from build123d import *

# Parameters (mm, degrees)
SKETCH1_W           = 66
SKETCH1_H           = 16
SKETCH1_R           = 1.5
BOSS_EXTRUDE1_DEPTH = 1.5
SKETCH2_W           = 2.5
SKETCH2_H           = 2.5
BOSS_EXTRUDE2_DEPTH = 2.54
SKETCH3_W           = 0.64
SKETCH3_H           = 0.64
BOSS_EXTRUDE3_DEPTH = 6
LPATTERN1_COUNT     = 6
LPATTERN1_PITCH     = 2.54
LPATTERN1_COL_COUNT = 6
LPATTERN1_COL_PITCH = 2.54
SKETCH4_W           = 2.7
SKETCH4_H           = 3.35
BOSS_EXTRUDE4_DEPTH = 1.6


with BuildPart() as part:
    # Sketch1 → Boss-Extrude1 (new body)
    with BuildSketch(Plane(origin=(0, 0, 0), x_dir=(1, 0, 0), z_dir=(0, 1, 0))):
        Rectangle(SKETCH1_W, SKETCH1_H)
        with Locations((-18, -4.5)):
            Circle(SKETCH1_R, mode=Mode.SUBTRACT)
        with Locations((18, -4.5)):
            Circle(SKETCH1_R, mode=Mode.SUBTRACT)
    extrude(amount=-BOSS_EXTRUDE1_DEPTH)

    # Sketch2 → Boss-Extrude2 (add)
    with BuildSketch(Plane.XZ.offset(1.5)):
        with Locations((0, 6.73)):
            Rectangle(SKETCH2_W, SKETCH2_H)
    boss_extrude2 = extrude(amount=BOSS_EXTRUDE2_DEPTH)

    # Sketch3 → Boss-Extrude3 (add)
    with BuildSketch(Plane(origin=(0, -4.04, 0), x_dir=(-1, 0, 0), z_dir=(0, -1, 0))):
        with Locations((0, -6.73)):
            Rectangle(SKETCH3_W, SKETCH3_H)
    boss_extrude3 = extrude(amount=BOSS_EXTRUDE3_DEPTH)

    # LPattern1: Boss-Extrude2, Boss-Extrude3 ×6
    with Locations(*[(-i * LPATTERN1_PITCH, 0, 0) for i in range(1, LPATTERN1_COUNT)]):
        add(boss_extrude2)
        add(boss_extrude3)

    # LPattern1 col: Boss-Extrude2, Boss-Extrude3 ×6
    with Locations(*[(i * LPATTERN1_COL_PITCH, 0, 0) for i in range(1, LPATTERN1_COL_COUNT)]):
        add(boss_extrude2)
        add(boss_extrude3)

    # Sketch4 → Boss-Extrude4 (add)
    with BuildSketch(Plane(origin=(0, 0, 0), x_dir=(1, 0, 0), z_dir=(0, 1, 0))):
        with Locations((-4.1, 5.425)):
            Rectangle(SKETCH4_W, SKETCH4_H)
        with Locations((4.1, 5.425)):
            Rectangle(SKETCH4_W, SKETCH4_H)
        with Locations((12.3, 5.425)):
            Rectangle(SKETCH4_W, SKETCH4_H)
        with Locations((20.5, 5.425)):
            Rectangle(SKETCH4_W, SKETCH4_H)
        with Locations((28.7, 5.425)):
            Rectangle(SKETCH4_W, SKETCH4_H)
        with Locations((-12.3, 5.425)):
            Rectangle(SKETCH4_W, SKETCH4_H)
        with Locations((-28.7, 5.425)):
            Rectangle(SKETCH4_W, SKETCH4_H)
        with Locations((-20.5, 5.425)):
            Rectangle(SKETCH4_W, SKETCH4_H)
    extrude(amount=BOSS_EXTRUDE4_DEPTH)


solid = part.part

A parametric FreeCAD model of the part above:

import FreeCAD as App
import Part
import Sketcher
Q = App.Units.Quantity

doc = App.newDocument("Part")
params = doc.addObject("Spreadsheet::Sheet", "Params")
for row, (alias, value) in enumerate([
    ("sketch1_diameter", "3 mm"),
    ("sketch1_width", "66 mm"),
    ("sketch1_height", "16 mm"),
    ("pad1_length", "1.5 mm"),
    ("sketch2_width", "2.5 mm"),
    ("pad2_length", "2.54 mm"),
    ("sketch3_width", "0.64 mm"),
    ("pad3_length", "6 mm"),
    ("linearpattern_pitch", "2.54 mm"),
    ("linearpattern2_pitch", "2.54 mm"),
    ("sketch4_width", "2.7 mm"),
    ("sketch4_height", "3.35 mm"),
    ("pad4_length", "1.6 mm"),
], start=1):
    params.set(f"A{row}", alias)
    params.set(f"B{row}", "=" + value)
    params.setAlias(f"B{row}", alias)

body = doc.addObject("PartDesign::Body", "Body")

# Sketch on XZ plane
sketch1 = body.newObject("Sketcher::SketchObject", "Sketch")
sketch1.AttachmentSupport = (doc.getObject("XZ_Plane"), [""])
sketch1.MapMode = "FlatFace"
sketch1.addGeometry(Part.LineSegment(App.Vector(-33, -8, 0), App.Vector(-33, 8, 0)), False)
sketch1.addGeometry(Part.LineSegment(App.Vector(-33, 8, 0), App.Vector(33, 8, 0)), False)
sketch1.addGeometry(Part.LineSegment(App.Vector(33, 8, 0), App.Vector(33, -8, 0)), False)
sketch1.addGeometry(Part.LineSegment(App.Vector(33, -8, 0), App.Vector(-33, -8, 0)), False)
sketch1.addGeometry(Part.Circle(App.Vector(-18, 4.5, 0), App.Vector(0, 0, 1), 1.5), False)
sketch1.addGeometry(Part.Circle(App.Vector(18, 4.5, 0), App.Vector(0, 0, 1), 1.5), False)
sketch1.addConstraint(Sketcher.Constraint("Coincident", 0, 2, 1, 1))
sketch1.addConstraint(Sketcher.Constraint("Coincident", 1, 2, 2, 1))
sketch1.addConstraint(Sketcher.Constraint("Coincident", 2, 2, 3, 1))
sketch1.addConstraint(Sketcher.Constraint("Coincident", 3, 2, 0, 1))
sketch1.addConstraint(Sketcher.Constraint("Vertical", 0))
sketch1.addConstraint(Sketcher.Constraint("Horizontal", 1))
sketch1.addConstraint(Sketcher.Constraint("Vertical", 2))
sketch1.addConstraint(Sketcher.Constraint("Horizontal", 3))
sketch1.addConstraint(Sketcher.Constraint("Equal", 4, 5))
sketch1.addConstraint(Sketcher.Constraint("Symmetric", 0, 2, 2, 2, -1, 1))
sketch1.addConstraint(Sketcher.Constraint("Symmetric", 4, 3, 5, 3, -2))
sketch1.addConstraint(Sketcher.Constraint("Diameter", 4, Q("3 mm")))
sketch1.addConstraint(Sketcher.Constraint("DistanceX", 1, 1, 1, 2, Q("66 mm")))
sketch1.addConstraint(Sketcher.Constraint("DistanceY", 0, 1, 0, 2, Q("16 mm")))
sketch1.addConstraint(Sketcher.Constraint("DistanceX", 4, 3, -1, 1, Q("18 mm")))
sketch1.addConstraint(Sketcher.Constraint("DistanceY", -1, 1, 4, 3, Q("4.5 mm")))
sketch1.setExpression("Constraints[11]", "Params.sketch1_diameter")
sketch1.setExpression("Constraints[12]", "Params.sketch1_width")
sketch1.setExpression("Constraints[13]", "Params.sketch1_height")
pad1 = body.newObject("PartDesign::Pad", "Pad")
pad1.Profile = sketch1
pad1.setExpression("Length", "Params.pad1_length")

# Sketch on XZ plane
sketch2 = body.newObject("Sketcher::SketchObject", "Sketch001")
sketch2.AttachmentSupport = (doc.getObject("XZ_Plane"), [""])
sketch2.MapMode = "FlatFace"
sketch2.AttachmentOffset = App.Placement(App.Vector(0, 0, 1.5), App.Rotation())
sketch2.addGeometry(Part.LineSegment(App.Vector(-1.2, 8, 0), App.Vector(-1.2, 5.5, 0)), False)
sketch2.addGeometry(Part.LineSegment(App.Vector(-1.2, 5.5, 0), App.Vector(1.2, 5.5, 0)), False)
sketch2.addGeometry(Part.LineSegment(App.Vector(1.2, 5.5, 0), App.Vector(1.2, 8, 0)), False)
sketch2.addGeometry(Part.LineSegment(App.Vector(1.2, 8, 0), App.Vector(-1.2, 8, 0)), False)
sketch2.addConstraint(Sketcher.Constraint("Coincident", 0, 2, 1, 1))
sketch2.addConstraint(Sketcher.Constraint("Coincident", 1, 2, 2, 1))
sketch2.addConstraint(Sketcher.Constraint("Coincident", 2, 2, 3, 1))
sketch2.addConstraint(Sketcher.Constraint("Coincident", 3, 2, 0, 1))
sketch2.addConstraint(Sketcher.Constraint("Vertical", 0))
sketch2.addConstraint(Sketcher.Constraint("Horizontal", 1))
sketch2.addConstraint(Sketcher.Constraint("Vertical", 2))
sketch2.addConstraint(Sketcher.Constraint("Horizontal", 3))
sketch2.addConstraint(Sketcher.Constraint("Equal", 3, 0))
sketch2.addConstraint(Sketcher.Constraint("DistanceX", 1, 1, 1, 2, Q("2.5 mm")))
sketch2.addConstraint(Sketcher.Constraint("DistanceX", 0, 2, -1, 1, Q("1.25 mm")))
sketch2.addConstraint(Sketcher.Constraint("DistanceY", -1, 1, 0, 2, Q("5.48 mm")))
sketch2.setExpression("Constraints[9]", "Params.sketch2_width")
pad2 = body.newObject("PartDesign::Pad", "Pad001")
pad2.Profile = sketch2
pad2.setExpression("Length", "Params.pad2_length")

# Sketch on XZ plane
sketch3 = body.newObject("Sketcher::SketchObject", "Sketch002")
sketch3.AttachmentSupport = (doc.getObject("XZ_Plane"), [""])
sketch3.MapMode = "FlatFace"
sketch3.AttachmentOffset = App.Placement(App.Vector(0, 0, 4.04), App.Rotation())
sketch3.addGeometry(Part.LineSegment(App.Vector(0.3, 6.4, 0), App.Vector(0.3, 7, 0)), False)
sketch3.addGeometry(Part.LineSegment(App.Vector(0.3, 7, 0), App.Vector(-0.3, 7, 0)), False)
sketch3.addGeometry(Part.LineSegment(App.Vector(-0.3, 7, 0), App.Vector(-0.3, 6.4, 0)), False)
sketch3.addGeometry(Part.LineSegment(App.Vector(-0.3, 6.4, 0), App.Vector(0.3, 6.4, 0)), False)
sketch3.addConstraint(Sketcher.Constraint("Coincident", 0, 2, 1, 1))
sketch3.addConstraint(Sketcher.Constraint("Coincident", 1, 2, 2, 1))
sketch3.addConstraint(Sketcher.Constraint("Coincident", 2, 2, 3, 1))
sketch3.addConstraint(Sketcher.Constraint("Coincident", 3, 2, 0, 1))
sketch3.addConstraint(Sketcher.Constraint("Vertical", 0))
sketch3.addConstraint(Sketcher.Constraint("Horizontal", 1))
sketch3.addConstraint(Sketcher.Constraint("Vertical", 2))
sketch3.addConstraint(Sketcher.Constraint("Horizontal", 3))
sketch3.addConstraint(Sketcher.Constraint("Equal", 3, 0))
sketch3.addConstraint(Sketcher.Constraint("DistanceX", 1, 2, 1, 1, Q("0.64 mm")))
sketch3.addConstraint(Sketcher.Constraint("DistanceX", -1, 1, 0, 2, Q("0.32 mm")))
sketch3.addConstraint(Sketcher.Constraint("DistanceY", -1, 1, 0, 2, Q("7.05 mm")))
sketch3.setExpression("Constraints[9]", "Params.sketch3_width")
pad3 = body.newObject("PartDesign::Pad", "Pad002")
pad3.Profile = sketch3
pad3.setExpression("Length", "Params.pad3_length")
doc.recompute()

linearpattern = body.newObject("PartDesign::LinearPattern", "LinearPattern")
linearpattern.Originals = [pad2, pad3]
linearpattern.Direction = (doc.getObject("X_Axis"), [""])
linearpattern.Mode = "offset"
linearpattern.setExpression("Offset", "Params.linearpattern_pitch")
linearpattern.Occurrences = 6
linearpattern.Reversed = True
body.Tip = linearpattern
doc.recompute()

linearpattern2 = body.newObject("PartDesign::LinearPattern", "LinearPattern001")
linearpattern2.Originals = [pad2, pad3]
linearpattern2.Direction = (doc.getObject("X_Axis"), [""])
linearpattern2.Mode = "offset"
linearpattern2.setExpression("Offset", "Params.linearpattern2_pitch")
linearpattern2.Occurrences = 6
body.Tip = linearpattern2

# Sketch on XZ plane
sketch4 = body.newObject("Sketcher::SketchObject", "Sketch003")
sketch4.AttachmentSupport = (doc.getObject("XZ_Plane"), [""])
sketch4.MapMode = "FlatFace"
sketch4.addGeometry(Part.LineSegment(App.Vector(-5.5, -7.1, 0), App.Vector(-5.5, -3.8, 0)), False)
sketch4.addGeometry(Part.LineSegment(App.Vector(-5.5, -3.8, 0), App.Vector(-2.8, -3.8, 0)), False)
sketch4.addGeometry(Part.LineSegment(App.Vector(-2.8, -3.8, 0), App.Vector(-2.8, -7.1, 0)), False)
sketch4.addGeometry(Part.LineSegment(App.Vector(-2.8, -7.1, 0), App.Vector(-5.5, -7.1, 0)), False)
sketch4.addGeometry(Part.LineSegment(App.Vector(2.8, -7.1, 0), App.Vector(2.8, -3.8, 0)), False)
sketch4.addGeometry(Part.LineSegment(App.Vector(2.8, -3.8, 0), App.Vector(5.5, -3.8, 0)), False)
sketch4.addGeometry(Part.LineSegment(App.Vector(5.5, -3.8, 0), App.Vector(5.5, -7.1, 0)), False)
sketch4.addGeometry(Part.LineSegment(App.Vector(5.5, -7.1, 0), App.Vector(2.8, -7.1, 0)), False)
sketch4.addGeometry(Part.LineSegment(App.Vector(10.9, -7.1, 0), App.Vector(10.9, -3.8, 0)), False)
sketch4.addGeometry(Part.LineSegment(App.Vector(10.9, -3.8, 0), App.Vector(13.7, -3.8, 0)), False)
sketch4.addGeometry(Part.LineSegment(App.Vector(13.7, -3.8, 0), App.Vector(13.7, -7.1, 0)), False)
sketch4.addGeometry(Part.LineSegment(App.Vector(13.7, -7.1, 0), App.Vector(10.9, -7.1, 0)), False)
sketch4.addGeometry(Part.LineSegment(App.Vector(19.1, -7.1, 0), App.Vector(19.1, -3.8, 0)), False)
sketch4.addGeometry(Part.LineSegment(App.Vector(19.1, -3.8, 0), App.Vector(21.9, -3.8, 0)), False)
sketch4.addGeometry(Part.LineSegment(App.Vector(21.9, -3.8, 0), App.Vector(21.9, -7.1, 0)), False)
sketch4.addGeometry(Part.LineSegment(App.Vector(21.9, -7.1, 0), App.Vector(19.1, -7.1, 0)), False)
sketch4.addGeometry(Part.LineSegment(App.Vector(27.4, -7.1, 0), App.Vector(27.4, -3.8, 0)), False)
sketch4.addGeometry(Part.LineSegment(App.Vector(27.4, -3.8, 0), App.Vector(30.1, -3.8, 0)), False)
sketch4.addGeometry(Part.LineSegment(App.Vector(30.1, -3.8, 0), App.Vector(30.1, -7.1, 0)), False)
sketch4.addGeometry(Part.LineSegment(App.Vector(30.1, -7.1, 0), App.Vector(27.4, -7.1, 0)), False)
sketch4.addGeometry(Part.LineSegment(App.Vector(-13.7, -7.1, 0), App.Vector(-13.7, -3.8, 0)), False)
sketch4.addGeometry(Part.LineSegment(App.Vector(-13.7, -3.8, 0), App.Vector(-10.9, -3.8, 0)), False)
sketch4.addGeometry(Part.LineSegment(App.Vector(-10.9, -3.8, 0), App.Vector(-10.9, -7.1, 0)), False)
sketch4.addGeometry(Part.LineSegment(App.Vector(-10.9, -7.1, 0), App.Vector(-13.7, -7.1, 0)), False)
sketch4.addGeometry(Part.LineSegment(App.Vector(-30.1, -7.1, 0), App.Vector(-30.1, -3.8, 0)), False)
sketch4.addGeometry(Part.LineSegment(App.Vector(-30.1, -3.8, 0), App.Vector(-27.4, -3.8, 0)), False)
sketch4.addGeometry(Part.LineSegment(App.Vector(-27.4, -3.8, 0), App.Vector(-27.4, -7.1, 0)), False)
sketch4.addGeometry(Part.LineSegment(App.Vector(-27.4, -7.1, 0), App.Vector(-30.1, -7.1, 0)), False)
sketch4.addGeometry(Part.LineSegment(App.Vector(-21.9, -7.1, 0), App.Vector(-21.9, -3.8, 0)), False)
sketch4.addGeometry(Part.LineSegment(App.Vector(-21.9, -3.8, 0), App.Vector(-19.1, -3.8, 0)), False)
sketch4.addGeometry(Part.LineSegment(App.Vector(-19.1, -3.8, 0), App.Vector(-19.1, -7.1, 0)), False)
sketch4.addGeometry(Part.LineSegment(App.Vector(-19.1, -7.1, 0), App.Vector(-21.9, -7.1, 0)), False)
sketch4.addConstraint(Sketcher.Constraint("Coincident", 0, 2, 1, 1))
sketch4.addConstraint(Sketcher.Constraint("Coincident", 1, 2, 2, 1))
sketch4.addConstraint(Sketcher.Constraint("Coincident", 2, 2, 3, 1))
sketch4.addConstraint(Sketcher.Constraint("Coincident", 3, 2, 0, 1))
sketch4.addConstraint(Sketcher.Constraint("Coincident", 4, 2, 5, 1))
sketch4.addConstraint(Sketcher.Constraint("Coincident", 5, 2, 6, 1))
sketch4.addConstraint(Sketcher.Constraint("Coincident", 6, 2, 7, 1))
sketch4.addConstraint(Sketcher.Constraint("Coincident", 7, 2, 4, 1))
sketch4.addConstraint(Sketcher.Constraint("Coincident", 8, 2, 9, 1))
sketch4.addConstraint(Sketcher.Constraint("Coincident", 9, 2, 10, 1))
sketch4.addConstraint(Sketcher.Constraint("Coincident", 10, 2, 11, 1))
sketch4.addConstraint(Sketcher.Constraint("Coincident", 11, 2, 8, 1))
sketch4.addConstraint(Sketcher.Constraint("Coincident", 12, 2, 13, 1))
sketch4.addConstraint(Sketcher.Constraint("Coincident", 13, 2, 14, 1))
sketch4.addConstraint(Sketcher.Constraint("Coincident", 14, 2, 15, 1))
sketch4.addConstraint(Sketcher.Constraint("Coincident", 15, 2, 12, 1))
sketch4.addConstraint(Sketcher.Constraint("Coincident", 16, 2, 17, 1))
sketch4.addConstraint(Sketcher.Constraint("Coincident", 17, 2, 18, 1))
sketch4.addConstraint(Sketcher.Constraint("Coincident", 18, 2, 19, 1))
sketch4.addConstraint(Sketcher.Constraint("Coincident", 19, 2, 16, 1))
sketch4.addConstraint(Sketcher.Constraint("Coincident", 20, 2, 21, 1))
sketch4.addConstraint(Sketcher.Constraint("Coincident", 21, 2, 22, 1))
sketch4.addConstraint(Sketcher.Constraint("Coincident", 22, 2, 23, 1))
sketch4.addConstraint(Sketcher.Constraint("Coincident", 23, 2, 20, 1))
sketch4.addConstraint(Sketcher.Constraint("Coincident", 24, 2, 25, 1))
sketch4.addConstraint(Sketcher.Constraint("Coincident", 25, 2, 26, 1))
sketch4.addConstraint(Sketcher.Constraint("Coincident", 26, 2, 27, 1))
sketch4.addConstraint(Sketcher.Constraint("Coincident", 27, 2, 24, 1))
sketch4.addConstraint(Sketcher.Constraint("Coincident", 28, 2, 29, 1))
sketch4.addConstraint(Sketcher.Constraint("Coincident", 29, 2, 30, 1))
sketch4.addConstraint(Sketcher.Constraint("Coincident", 30, 2, 31, 1))
sketch4.addConstraint(Sketcher.Constraint("Coincident", 31, 2, 28, 1))
sketch4.addConstraint(Sketcher.Constraint("Vertical", 0))
sketch4.addConstraint(Sketcher.Constraint("Horizontal", 1))
sketch4.addConstraint(Sketcher.Constraint("Vertical", 2))
sketch4.addConstraint(Sketcher.Constraint("Horizontal", 3))
sketch4.addConstraint(Sketcher.Constraint("Vertical", 4))
sketch4.addConstraint(Sketcher.Constraint("Horizontal", 5))
sketch4.addConstraint(Sketcher.Constraint("Vertical", 6))
sketch4.addConstraint(Sketcher.Constraint("Horizontal", 7))
sketch4.addConstraint(Sketcher.Constraint("Vertical", 8))
sketch4.addConstraint(Sketcher.Constraint("Horizontal", 9))
sketch4.addConstraint(Sketcher.Constraint("Vertical", 10))
sketch4.addConstraint(Sketcher.Constraint("Horizontal", 11))
sketch4.addConstraint(Sketcher.Constraint("Vertical", 12))
sketch4.addConstraint(Sketcher.Constraint("Horizontal", 13))
sketch4.addConstraint(Sketcher.Constraint("Vertical", 14))
sketch4.addConstraint(Sketcher.Constraint("Horizontal", 15))
sketch4.addConstraint(Sketcher.Constraint("Vertical", 16))
sketch4.addConstraint(Sketcher.Constraint("Horizontal", 17))
sketch4.addConstraint(Sketcher.Constraint("Vertical", 18))
sketch4.addConstraint(Sketcher.Constraint("Horizontal", 19))
sketch4.addConstraint(Sketcher.Constraint("Vertical", 20))
sketch4.addConstraint(Sketcher.Constraint("Horizontal", 21))
sketch4.addConstraint(Sketcher.Constraint("Vertical", 22))
sketch4.addConstraint(Sketcher.Constraint("Horizontal", 23))
sketch4.addConstraint(Sketcher.Constraint("Vertical", 24))
sketch4.addConstraint(Sketcher.Constraint("Horizontal", 25))
sketch4.addConstraint(Sketcher.Constraint("Vertical", 26))
sketch4.addConstraint(Sketcher.Constraint("Horizontal", 27))
sketch4.addConstraint(Sketcher.Constraint("Vertical", 28))
sketch4.addConstraint(Sketcher.Constraint("Horizontal", 29))
sketch4.addConstraint(Sketcher.Constraint("Vertical", 30))
sketch4.addConstraint(Sketcher.Constraint("Horizontal", 31))
sketch4.addConstraint(Sketcher.Constraint("Symmetric", 1, 2, 4, 2, -2))
sketch4.addConstraint(Sketcher.Constraint("Symmetric", 3, 2, 6, 2, -2))
sketch4.addConstraint(Sketcher.Constraint("Symmetric", 9, 2, 20, 2, -2))
sketch4.addConstraint(Sketcher.Constraint("Symmetric", 11, 2, 22, 2, -2))
sketch4.addConstraint(Sketcher.Constraint("Symmetric", 17, 2, 24, 2, -2))
sketch4.addConstraint(Sketcher.Constraint("Symmetric", 19, 2, 26, 2, -2))
sketch4.addConstraint(Sketcher.Constraint("Symmetric", 13, 2, 28, 2, -2))
sketch4.addConstraint(Sketcher.Constraint("Symmetric", 15, 2, 30, 2, -2))
sketch4.addConstraint(Sketcher.Constraint("Horizontal", 5, 2, 8, 2))
sketch4.addConstraint(Sketcher.Constraint("Horizontal", 7, 2, 10, 2))
sketch4.addConstraint(Sketcher.Constraint("Horizontal", 9, 2, 12, 2))
sketch4.addConstraint(Sketcher.Constraint("Horizontal", 11, 2, 14, 2))
sketch4.addConstraint(Sketcher.Constraint("Horizontal", 13, 2, 16, 2))
sketch4.addConstraint(Sketcher.Constraint("Horizontal", 15, 2, 18, 2))
sketch4.addConstraint(Sketcher.Constraint("Equal", 7, 9))
sketch4.addConstraint(Sketcher.Constraint("Equal", 11, 13))
sketch4.addConstraint(Sketcher.Constraint("Equal", 15, 17))
sketch4.addConstraint(Sketcher.Constraint("DistanceX", 1, 1, 1, 2, Q("2.7 mm")))
sketch4.addConstraint(Sketcher.Constraint("DistanceY", 0, 1, 0, 2, Q("3.35 mm")))
sketch4.addConstraint(Sketcher.Constraint("DistanceY", 2, 2, -1, 1, Q("7.1 mm")))
sketch4.addConstraint(Sketcher.Constraint("DistanceX", 1, 2, 4, 2, Q("5.5 mm")))
sketch4.addConstraint(Sketcher.Constraint("DistanceX", 5, 2, 8, 2, Q("5.5 mm")))
sketch4.addConstraint(Sketcher.Constraint("DistanceX", 9, 2, 12, 2, Q("5.5 mm")))
sketch4.addConstraint(Sketcher.Constraint("DistanceX", 13, 2, 16, 2, Q("5.5 mm")))
sketch4.setExpression("Constraints[81]", "Params.sketch4_width")
sketch4.setExpression("Constraints[82]", "Params.sketch4_height")
pad4 = body.newObject("PartDesign::Pad", "Pad003")
pad4.Profile = sketch4
pad4.setExpression("Length", "Params.pad4_length")
pad4.Reversed = True

doc.recompute()
